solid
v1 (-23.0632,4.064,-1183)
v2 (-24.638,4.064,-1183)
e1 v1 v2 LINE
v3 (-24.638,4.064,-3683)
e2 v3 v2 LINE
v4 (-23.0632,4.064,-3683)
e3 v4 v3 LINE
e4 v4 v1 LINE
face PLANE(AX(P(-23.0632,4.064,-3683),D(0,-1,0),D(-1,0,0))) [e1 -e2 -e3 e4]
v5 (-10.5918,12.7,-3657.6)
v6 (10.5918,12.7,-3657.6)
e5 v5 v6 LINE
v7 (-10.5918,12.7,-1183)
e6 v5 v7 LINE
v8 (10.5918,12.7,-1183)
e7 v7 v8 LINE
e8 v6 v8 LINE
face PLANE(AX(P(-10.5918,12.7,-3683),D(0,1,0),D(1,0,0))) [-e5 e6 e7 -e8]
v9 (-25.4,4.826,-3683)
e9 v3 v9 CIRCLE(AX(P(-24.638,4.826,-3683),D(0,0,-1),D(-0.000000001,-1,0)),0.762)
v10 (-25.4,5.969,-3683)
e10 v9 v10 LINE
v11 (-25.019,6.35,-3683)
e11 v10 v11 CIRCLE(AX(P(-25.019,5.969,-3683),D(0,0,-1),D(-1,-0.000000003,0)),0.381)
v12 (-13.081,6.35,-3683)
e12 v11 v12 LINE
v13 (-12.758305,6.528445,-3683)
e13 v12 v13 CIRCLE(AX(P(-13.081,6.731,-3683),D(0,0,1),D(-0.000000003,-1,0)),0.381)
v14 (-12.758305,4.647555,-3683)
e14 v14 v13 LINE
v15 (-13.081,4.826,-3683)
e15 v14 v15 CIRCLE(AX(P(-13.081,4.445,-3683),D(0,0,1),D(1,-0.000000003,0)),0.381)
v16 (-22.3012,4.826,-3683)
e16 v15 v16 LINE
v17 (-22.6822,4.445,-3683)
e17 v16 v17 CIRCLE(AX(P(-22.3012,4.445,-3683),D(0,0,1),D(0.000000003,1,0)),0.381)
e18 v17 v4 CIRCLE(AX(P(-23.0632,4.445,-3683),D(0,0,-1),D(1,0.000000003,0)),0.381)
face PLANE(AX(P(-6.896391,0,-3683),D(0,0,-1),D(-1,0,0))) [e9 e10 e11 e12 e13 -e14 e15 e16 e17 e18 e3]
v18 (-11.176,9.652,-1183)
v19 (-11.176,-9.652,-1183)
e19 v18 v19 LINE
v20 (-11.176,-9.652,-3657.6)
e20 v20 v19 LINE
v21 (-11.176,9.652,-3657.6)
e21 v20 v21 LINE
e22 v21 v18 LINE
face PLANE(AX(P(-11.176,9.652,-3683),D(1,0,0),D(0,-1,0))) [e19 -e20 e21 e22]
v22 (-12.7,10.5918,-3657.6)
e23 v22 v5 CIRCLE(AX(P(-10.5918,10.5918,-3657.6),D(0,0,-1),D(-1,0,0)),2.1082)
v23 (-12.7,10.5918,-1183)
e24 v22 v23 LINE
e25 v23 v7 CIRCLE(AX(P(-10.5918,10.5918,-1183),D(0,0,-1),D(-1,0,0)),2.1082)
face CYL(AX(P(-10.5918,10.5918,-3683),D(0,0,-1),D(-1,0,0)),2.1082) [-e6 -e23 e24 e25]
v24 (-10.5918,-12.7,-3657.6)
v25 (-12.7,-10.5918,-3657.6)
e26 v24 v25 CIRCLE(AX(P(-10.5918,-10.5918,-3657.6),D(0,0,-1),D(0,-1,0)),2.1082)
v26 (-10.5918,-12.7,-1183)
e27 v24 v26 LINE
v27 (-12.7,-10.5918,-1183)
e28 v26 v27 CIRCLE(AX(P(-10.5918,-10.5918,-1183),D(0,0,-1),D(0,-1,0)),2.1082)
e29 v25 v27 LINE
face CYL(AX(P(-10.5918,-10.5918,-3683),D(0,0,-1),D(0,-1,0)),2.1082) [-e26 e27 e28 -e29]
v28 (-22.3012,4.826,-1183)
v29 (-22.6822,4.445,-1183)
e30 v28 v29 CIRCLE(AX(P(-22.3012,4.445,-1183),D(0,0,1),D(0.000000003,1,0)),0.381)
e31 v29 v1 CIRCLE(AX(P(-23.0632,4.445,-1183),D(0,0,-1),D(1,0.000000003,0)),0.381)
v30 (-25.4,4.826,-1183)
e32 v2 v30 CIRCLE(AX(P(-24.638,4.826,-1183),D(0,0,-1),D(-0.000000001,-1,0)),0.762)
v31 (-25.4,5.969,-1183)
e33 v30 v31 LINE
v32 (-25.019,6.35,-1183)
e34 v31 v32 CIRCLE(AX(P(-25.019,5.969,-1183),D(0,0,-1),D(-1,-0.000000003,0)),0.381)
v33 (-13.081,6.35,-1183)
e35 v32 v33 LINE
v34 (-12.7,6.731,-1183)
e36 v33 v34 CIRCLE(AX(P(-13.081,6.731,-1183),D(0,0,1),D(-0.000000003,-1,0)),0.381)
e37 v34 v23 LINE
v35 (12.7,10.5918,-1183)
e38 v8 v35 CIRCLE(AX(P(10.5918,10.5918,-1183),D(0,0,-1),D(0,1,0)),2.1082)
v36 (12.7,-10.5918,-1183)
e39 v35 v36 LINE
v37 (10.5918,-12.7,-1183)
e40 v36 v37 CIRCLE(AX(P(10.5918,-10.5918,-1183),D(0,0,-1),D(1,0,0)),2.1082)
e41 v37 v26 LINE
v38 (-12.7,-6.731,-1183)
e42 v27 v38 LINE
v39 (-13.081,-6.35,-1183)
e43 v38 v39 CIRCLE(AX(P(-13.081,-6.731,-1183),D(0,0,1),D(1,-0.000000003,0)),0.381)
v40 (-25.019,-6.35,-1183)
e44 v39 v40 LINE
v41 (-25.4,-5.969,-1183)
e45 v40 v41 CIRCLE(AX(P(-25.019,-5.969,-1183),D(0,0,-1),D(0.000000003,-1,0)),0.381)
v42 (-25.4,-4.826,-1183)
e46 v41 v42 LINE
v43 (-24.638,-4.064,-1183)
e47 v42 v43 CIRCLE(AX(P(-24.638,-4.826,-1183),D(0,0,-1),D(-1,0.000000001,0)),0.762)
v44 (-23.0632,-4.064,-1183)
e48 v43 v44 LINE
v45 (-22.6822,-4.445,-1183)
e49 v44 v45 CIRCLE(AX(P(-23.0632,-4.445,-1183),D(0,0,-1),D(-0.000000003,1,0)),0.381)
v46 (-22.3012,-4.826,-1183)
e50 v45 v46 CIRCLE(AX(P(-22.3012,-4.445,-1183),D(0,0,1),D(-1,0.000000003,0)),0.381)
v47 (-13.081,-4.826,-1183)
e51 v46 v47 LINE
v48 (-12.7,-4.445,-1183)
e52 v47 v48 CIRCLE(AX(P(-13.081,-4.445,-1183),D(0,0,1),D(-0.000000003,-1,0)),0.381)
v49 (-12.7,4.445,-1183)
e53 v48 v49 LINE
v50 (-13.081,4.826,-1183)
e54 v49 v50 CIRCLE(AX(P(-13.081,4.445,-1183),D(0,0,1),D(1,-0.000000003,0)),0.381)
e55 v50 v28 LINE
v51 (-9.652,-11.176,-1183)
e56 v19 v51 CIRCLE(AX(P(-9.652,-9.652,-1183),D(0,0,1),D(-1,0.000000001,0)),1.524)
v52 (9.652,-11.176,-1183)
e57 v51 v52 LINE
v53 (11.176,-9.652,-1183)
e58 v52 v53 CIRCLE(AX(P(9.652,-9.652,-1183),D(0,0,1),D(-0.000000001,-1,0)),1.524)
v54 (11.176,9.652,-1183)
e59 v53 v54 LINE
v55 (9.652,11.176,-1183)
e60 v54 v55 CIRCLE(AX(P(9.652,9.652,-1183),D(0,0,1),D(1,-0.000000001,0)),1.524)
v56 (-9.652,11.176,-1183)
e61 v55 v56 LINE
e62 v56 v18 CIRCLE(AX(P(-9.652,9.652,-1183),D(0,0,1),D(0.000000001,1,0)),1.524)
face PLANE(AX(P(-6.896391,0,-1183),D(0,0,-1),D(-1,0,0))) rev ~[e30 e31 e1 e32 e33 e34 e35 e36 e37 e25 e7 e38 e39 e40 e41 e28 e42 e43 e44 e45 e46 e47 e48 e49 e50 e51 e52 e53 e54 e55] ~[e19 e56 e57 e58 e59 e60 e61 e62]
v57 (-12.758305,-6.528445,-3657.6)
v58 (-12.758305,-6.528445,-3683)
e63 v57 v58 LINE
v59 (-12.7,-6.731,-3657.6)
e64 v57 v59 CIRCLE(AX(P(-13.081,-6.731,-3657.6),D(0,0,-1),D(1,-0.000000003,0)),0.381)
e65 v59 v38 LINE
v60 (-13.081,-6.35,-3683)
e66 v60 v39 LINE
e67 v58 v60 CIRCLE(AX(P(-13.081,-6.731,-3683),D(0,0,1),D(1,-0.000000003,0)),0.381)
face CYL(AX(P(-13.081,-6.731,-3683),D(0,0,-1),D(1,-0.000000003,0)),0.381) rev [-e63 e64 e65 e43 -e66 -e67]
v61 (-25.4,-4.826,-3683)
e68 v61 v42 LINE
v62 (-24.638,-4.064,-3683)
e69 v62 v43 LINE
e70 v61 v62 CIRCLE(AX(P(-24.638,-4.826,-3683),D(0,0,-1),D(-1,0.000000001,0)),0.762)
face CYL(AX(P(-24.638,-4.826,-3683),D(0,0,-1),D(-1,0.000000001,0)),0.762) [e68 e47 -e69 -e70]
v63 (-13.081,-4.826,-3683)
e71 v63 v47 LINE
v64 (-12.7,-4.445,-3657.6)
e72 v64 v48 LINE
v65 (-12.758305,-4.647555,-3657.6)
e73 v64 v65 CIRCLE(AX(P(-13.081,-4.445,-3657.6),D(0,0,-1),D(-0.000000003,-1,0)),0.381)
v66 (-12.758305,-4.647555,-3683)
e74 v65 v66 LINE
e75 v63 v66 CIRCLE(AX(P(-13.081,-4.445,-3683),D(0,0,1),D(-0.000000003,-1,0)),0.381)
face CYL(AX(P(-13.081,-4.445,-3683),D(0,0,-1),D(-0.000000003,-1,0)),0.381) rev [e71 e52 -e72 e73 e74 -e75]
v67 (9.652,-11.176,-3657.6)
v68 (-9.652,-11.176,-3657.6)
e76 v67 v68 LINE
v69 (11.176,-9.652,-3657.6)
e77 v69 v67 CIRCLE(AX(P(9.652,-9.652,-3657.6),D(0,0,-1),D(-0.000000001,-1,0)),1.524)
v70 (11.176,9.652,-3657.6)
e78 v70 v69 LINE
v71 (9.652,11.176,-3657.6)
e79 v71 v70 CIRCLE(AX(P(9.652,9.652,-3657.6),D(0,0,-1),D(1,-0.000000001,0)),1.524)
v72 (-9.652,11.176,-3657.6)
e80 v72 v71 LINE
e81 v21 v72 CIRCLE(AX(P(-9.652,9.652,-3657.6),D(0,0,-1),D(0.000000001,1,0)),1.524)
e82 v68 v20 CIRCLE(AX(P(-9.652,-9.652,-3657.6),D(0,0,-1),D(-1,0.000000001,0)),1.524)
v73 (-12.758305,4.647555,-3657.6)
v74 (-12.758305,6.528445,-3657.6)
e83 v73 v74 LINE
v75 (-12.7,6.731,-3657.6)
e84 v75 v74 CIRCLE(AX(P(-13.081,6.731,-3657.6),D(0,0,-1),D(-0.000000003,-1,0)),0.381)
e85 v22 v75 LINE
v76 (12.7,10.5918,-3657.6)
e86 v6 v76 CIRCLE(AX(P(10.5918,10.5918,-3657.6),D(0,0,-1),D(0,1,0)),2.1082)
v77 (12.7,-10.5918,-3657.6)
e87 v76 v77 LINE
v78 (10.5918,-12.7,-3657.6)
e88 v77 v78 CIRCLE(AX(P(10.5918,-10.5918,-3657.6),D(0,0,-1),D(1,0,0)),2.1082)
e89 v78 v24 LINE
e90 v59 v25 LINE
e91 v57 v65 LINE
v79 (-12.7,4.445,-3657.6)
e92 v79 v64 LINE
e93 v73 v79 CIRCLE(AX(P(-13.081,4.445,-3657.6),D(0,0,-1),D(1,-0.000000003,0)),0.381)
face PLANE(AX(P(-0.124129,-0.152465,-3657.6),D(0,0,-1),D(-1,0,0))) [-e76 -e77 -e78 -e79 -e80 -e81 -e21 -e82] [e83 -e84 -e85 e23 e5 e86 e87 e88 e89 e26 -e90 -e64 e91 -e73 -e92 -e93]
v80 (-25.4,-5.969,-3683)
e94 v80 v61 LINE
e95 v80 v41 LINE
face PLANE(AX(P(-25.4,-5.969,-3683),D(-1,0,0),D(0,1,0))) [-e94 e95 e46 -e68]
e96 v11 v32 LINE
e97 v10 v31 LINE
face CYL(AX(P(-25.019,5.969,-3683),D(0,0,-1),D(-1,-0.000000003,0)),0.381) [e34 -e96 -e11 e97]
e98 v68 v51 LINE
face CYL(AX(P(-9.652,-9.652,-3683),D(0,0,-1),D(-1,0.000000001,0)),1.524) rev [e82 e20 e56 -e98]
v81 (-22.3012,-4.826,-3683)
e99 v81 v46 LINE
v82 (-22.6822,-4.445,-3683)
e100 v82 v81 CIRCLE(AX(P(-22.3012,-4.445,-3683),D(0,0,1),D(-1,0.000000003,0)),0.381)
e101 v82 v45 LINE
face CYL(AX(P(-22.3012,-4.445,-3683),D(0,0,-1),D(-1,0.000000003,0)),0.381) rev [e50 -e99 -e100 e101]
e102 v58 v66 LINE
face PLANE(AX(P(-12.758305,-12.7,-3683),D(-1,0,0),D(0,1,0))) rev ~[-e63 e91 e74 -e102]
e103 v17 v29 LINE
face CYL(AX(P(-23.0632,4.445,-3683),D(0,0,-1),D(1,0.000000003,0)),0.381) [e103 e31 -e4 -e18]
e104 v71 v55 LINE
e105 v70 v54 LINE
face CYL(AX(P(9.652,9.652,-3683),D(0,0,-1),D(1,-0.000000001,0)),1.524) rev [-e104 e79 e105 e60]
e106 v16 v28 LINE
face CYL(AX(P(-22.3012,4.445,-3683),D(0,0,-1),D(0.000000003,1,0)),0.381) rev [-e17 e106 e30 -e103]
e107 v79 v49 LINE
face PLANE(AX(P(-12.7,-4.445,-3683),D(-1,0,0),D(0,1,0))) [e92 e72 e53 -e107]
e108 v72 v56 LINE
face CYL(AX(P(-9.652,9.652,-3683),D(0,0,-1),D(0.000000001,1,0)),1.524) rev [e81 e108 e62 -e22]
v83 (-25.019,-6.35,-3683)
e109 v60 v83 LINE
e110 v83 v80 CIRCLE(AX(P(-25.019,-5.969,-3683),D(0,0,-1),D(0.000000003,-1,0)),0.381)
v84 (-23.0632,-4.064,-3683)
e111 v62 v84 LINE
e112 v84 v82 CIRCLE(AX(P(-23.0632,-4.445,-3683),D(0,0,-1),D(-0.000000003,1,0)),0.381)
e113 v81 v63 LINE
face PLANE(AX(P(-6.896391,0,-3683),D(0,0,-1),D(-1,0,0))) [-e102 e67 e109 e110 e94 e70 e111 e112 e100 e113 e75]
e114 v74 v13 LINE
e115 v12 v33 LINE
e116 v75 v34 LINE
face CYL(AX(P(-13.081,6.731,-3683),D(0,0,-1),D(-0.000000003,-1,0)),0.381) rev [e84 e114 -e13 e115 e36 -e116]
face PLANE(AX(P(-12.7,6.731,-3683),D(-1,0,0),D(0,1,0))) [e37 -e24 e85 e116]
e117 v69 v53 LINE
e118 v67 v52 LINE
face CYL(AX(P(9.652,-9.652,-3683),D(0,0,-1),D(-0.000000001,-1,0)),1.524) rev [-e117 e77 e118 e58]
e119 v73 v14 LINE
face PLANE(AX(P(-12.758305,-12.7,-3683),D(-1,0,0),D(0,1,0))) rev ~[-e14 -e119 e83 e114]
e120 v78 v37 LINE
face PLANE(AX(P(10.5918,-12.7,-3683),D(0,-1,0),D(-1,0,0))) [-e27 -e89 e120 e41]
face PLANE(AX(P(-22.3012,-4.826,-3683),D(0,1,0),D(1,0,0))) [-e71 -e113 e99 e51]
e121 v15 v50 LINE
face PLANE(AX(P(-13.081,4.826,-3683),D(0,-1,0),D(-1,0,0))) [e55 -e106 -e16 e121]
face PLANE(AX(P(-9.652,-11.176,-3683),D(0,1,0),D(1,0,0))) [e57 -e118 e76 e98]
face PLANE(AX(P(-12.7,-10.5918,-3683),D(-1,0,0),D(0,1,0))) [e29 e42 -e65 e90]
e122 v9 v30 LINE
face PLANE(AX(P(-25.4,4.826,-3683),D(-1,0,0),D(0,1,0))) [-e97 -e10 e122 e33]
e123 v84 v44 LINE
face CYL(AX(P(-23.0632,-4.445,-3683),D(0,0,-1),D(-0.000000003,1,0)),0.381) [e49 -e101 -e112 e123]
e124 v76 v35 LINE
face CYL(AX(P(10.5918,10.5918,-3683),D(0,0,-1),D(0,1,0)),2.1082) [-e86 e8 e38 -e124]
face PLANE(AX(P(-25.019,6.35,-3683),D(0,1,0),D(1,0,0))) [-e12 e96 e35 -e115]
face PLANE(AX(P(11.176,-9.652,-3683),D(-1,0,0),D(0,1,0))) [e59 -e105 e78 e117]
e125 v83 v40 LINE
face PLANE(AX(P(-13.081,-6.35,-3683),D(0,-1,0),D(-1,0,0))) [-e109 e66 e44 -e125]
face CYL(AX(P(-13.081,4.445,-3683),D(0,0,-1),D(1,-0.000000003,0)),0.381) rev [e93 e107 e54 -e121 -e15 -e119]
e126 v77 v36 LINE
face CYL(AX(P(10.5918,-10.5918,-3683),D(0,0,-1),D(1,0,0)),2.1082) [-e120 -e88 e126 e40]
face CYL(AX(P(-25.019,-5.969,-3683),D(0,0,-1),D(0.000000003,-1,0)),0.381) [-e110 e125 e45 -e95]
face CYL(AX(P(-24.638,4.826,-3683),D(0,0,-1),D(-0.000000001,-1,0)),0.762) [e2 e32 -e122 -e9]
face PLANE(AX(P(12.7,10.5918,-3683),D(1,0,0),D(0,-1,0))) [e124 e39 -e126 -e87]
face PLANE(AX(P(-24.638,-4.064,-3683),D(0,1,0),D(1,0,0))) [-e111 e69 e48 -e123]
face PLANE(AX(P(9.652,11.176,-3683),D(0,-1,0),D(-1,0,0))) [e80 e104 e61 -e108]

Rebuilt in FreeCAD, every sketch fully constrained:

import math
import FreeCAD as App
import Part
import Sketcher
from FreeCAD import Vector
Q = App.Units.Quantity

doc = App.newDocument("Part")
body = doc.addObject("PartDesign::Body", "Body")

sketch1 = body.newObject("Sketcher::SketchObject", "Sketch")
sketch1.AttachmentSupport = (doc.getObject("XY_Plane"), [""])
sketch1.MapMode = "FlatFace"
sketch1.AttachmentOffset = App.Placement(Vector(0, 0, -145 * 25.4), App.Rotation())
sketch1.addGeometry([
    Part.LineSegment(Vector(-25.4, -5.97, 0), Vector(-25.4, -4.83, 0)),
    Part.ArcOfCircle(Part.Circle(Vector(-24.64, -4.83, 0), Vector(0, 0, 1), 0.76), math.radians(90), math.radians(180)),
    Part.LineSegment(Vector(-24.64, -4.06, 0), Vector(-23.06, -4.06, 0)),
    Part.ArcOfCircle(Part.Circle(Vector(-23.06, -4.44, 0), Vector(0, 0, 1), 0.38), math.radians(0), math.radians(90)),
    Part.ArcOfCircle(Part.Circle(Vector(-22.3, -4.45, 0), Vector(0, 0, 1), 0.38), math.radians(180), math.radians(270)),
    Part.LineSegment(Vector(-22.3, -4.83, 0), Vector(-13.08, -4.83, 0)),
    Part.ArcOfCircle(Part.Circle(Vector(-13.08, -4.45, 0), Vector(0, 0, 1), 0.38), math.radians(-90), math.radians(0)),
    Part.LineSegment(Vector(-12.7, -4.45, 0), Vector(-12.7, 4.45, 0)),
    Part.ArcOfCircle(Part.Circle(Vector(-13.08, 4.45, 0), Vector(0, 0, 1), 0.38), math.radians(0), math.radians(90)),
    Part.LineSegment(Vector(-13.08, 4.83, 0), Vector(-22.3, 4.83, 0)),
    Part.ArcOfCircle(Part.Circle(Vector(-22.3, 4.45, 0), Vector(0, 0, 1), 0.38), math.radians(90), math.radians(180)),
    Part.ArcOfCircle(Part.Circle(Vector(-23.06, 4.44, 0), Vector(0, 0, 1), 0.38), math.radians(-90), math.radians(0)),
    Part.LineSegment(Vector(-23.06, 4.06, 0), Vector(-24.64, 4.06, 0)),
    Part.ArcOfCircle(Part.Circle(Vector(-24.64, 4.83, 0), Vector(0, 0, 1), 0.76), math.radians(-180), math.radians(-90)),
    Part.LineSegment(Vector(-25.4, 4.83, 0), Vector(-25.4, 5.97, 0)),
    Part.ArcOfCircle(Part.Circle(Vector(-25.02, 5.97, 0), Vector(0, 0, 1), 0.38), math.radians(90), math.radians(180)),
    Part.LineSegment(Vector(-25.02, 6.35, 0), Vector(-13.08, 6.35, 0)),
    Part.ArcOfCircle(Part.Circle(Vector(-13.08, 6.73, 0), Vector(0, 0, 1), 0.38), math.radians(-90), math.radians(0)),
    Part.LineSegment(Vector(-12.7, 6.73, 0), Vector(-12.7, 10.59, 0)),
    Part.ArcOfCircle(Part.Circle(Vector(-10.59, 10.59, 0), Vector(0, 0, 1), 2.11), math.radians(90), math.radians(180)),
    Part.LineSegment(Vector(-10.59, 12.7, 0), Vector(10.59, 12.7, 0)),
    Part.ArcOfCircle(Part.Circle(Vector(10.59, 10.59, 0), Vector(0, 0, 1), 2.11), math.radians(0), math.radians(90)),
    Part.LineSegment(Vector(12.7, 10.59, 0), Vector(12.7, -10.59, 0)),
    Part.ArcOfCircle(Part.Circle(Vector(10.59, -10.59, 0), Vector(0, 0, 1), 2.11), math.radians(-90), math.radians(0)),
    Part.LineSegment(Vector(10.59, -12.7, 0), Vector(-10.59, -12.7, 0)),
    Part.ArcOfCircle(Part.Circle(Vector(-10.59, -10.59, 0), Vector(0, 0, 1), 2.11), math.radians(180), math.radians(270)),
    Part.LineSegment(Vector(-12.7, -10.59, 0), Vector(-12.7, -6.73, 0)),
    Part.ArcOfCircle(Part.Circle(Vector(-13.08, -6.73, 0), Vector(0, 0, 1), 0.38), math.radians(0), math.radians(90)),
    Part.LineSegment(Vector(-13.08, -6.35, 0), Vector(-25.02, -6.35, 0)),
    Part.ArcOfCircle(Part.Circle(Vector(-25.02, -5.97, 0), Vector(0, 0, 1), 0.38), math.radians(180), math.radians(270)),
    Part.ArcOfCircle(Part.Circle(Vector(-9.65, 9.65, 0), Vector(0, 0, 1), 1.52), math.radians(90), math.radians(180)),
    Part.LineSegment(Vector(-11.18, 9.65, 0), Vector(-11.18, -9.65, 0)),
    Part.ArcOfCircle(Part.Circle(Vector(-9.65, -9.65, 0), Vector(0, 0, 1), 1.52), math.radians(180), math.radians(270)),
    Part.LineSegment(Vector(-9.65, -11.18, 0), Vector(9.65, -11.18, 0)),
    Part.ArcOfCircle(Part.Circle(Vector(9.65, -9.65, 0), Vector(0, 0, 1), 1.52), math.radians(-90), math.radians(0)),
    Part.LineSegment(Vector(11.18, -9.65, 0), Vector(11.18, 9.65, 0)),
    Part.ArcOfCircle(Part.Circle(Vector(9.65, 9.65, 0), Vector(0, 0, 1), 1.52), math.radians(0), math.radians(90)),
    Part.LineSegment(Vector(9.65, 11.18, 0), Vector(-9.65, 11.18, 0)),
], False)
sketch1.addConstraint([
    Sketcher.Constraint("Tangent", 0, 2, 1, 2),
    Sketcher.Constraint("Tangent", 1, 1, 2, 1),
    Sketcher.Constraint("Tangent", 2, 2, 3, 2),
    Sketcher.Constraint("Tangent", 3, 1, 4, 1),
    Sketcher.Constraint("Tangent", 4, 2, 5, 1),
    Sketcher.Constraint("Tangent", 5, 2, 6, 1),
    Sketcher.Constraint("Tangent", 6, 2, 7, 1),
    Sketcher.Constraint("Tangent", 7, 2, 8, 1),
    Sketcher.Constraint("Tangent", 8, 2, 9, 1),
    Sketcher.Constraint("Tangent", 9, 2, 10, 1),
    Sketcher.Constraint("Tangent", 10, 2, 11, 2),
    Sketcher.Constraint("Tangent", 11, 1, 12, 1),
    Sketcher.Constraint("Tangent", 12, 2, 13, 2),
    Sketcher.Constraint("Tangent", 13, 1, 14, 1),
    Sketcher.Constraint("Tangent", 14, 2, 15, 2),
    Sketcher.Constraint("Tangent", 15, 1, 16, 1),
    Sketcher.Constraint("Tangent", 16, 2, 17, 1),
    Sketcher.Constraint("Tangent", 17, 2, 18, 1),
    Sketcher.Constraint("Tangent", 18, 2, 19, 2),
    Sketcher.Constraint("Tangent", 19, 1, 20, 1),
    Sketcher.Constraint("Tangent", 20, 2, 21, 2),
    Sketcher.Constraint("Tangent", 21, 1, 22, 1),
    Sketcher.Constraint("Tangent", 22, 2, 23, 2),
    Sketcher.Constraint("Tangent", 23, 1, 24, 1),
    Sketcher.Constraint("Tangent", 24, 2, 25, 2),
    Sketcher.Constraint("Tangent", 25, 1, 26, 1),
    Sketcher.Constraint("Tangent", 26, 2, 27, 1),
    Sketcher.Constraint("Tangent", 27, 2, 28, 1),
    Sketcher.Constraint("Tangent", 28, 2, 29, 2),
    Sketcher.Constraint("Tangent", 29, 1, 0, 1),
    Sketcher.Constraint("Tangent", 30, 2, 31, 1),
    Sketcher.Constraint("Tangent", 31, 2, 32, 1),
    Sketcher.Constraint("Tangent", 32, 2, 33, 1),
    Sketcher.Constraint("Tangent", 33, 2, 34, 1),
    Sketcher.Constraint("Tangent", 34, 2, 35, 1),
    Sketcher.Constraint("Tangent", 35, 2, 36, 1),
    Sketcher.Constraint("Tangent", 36, 2, 37, 1),
    Sketcher.Constraint("Tangent", 37, 2, 30, 1),
    Sketcher.Constraint("Vertical", 0),
    Sketcher.Constraint("Horizontal", 2),
    Sketcher.Constraint("Horizontal", 5),
    Sketcher.Constraint("Vertical", 7),
    Sketcher.Constraint("Horizontal", 9),
    Sketcher.Constraint("Horizontal", 12),
    Sketcher.Constraint("Vertical", 14),
    Sketcher.Constraint("Horizontal", 16),
    Sketcher.Constraint("Vertical", 18),
    Sketcher.Constraint("Horizontal", 20),
    Sketcher.Constraint("Vertical", 22),
    Sketcher.Constraint("Horizontal", 24),
    Sketcher.Constraint("Vertical", 26),
    Sketcher.Constraint("Horizontal", 28),
    Sketcher.Constraint("Vertical", 31),
    Sketcher.Constraint("Horizontal", 33),
    Sketcher.Constraint("Vertical", 35),
    Sketcher.Constraint("Horizontal", 37),
    Sketcher.Constraint("Equal", 3, 4),
    Sketcher.Constraint("Equal", 4, 6),
    Sketcher.Constraint("Equal", 6, 8),
    Sketcher.Constraint("Equal", 8, 10),
    Sketcher.Constraint("Equal", 10, 11),
    Sketcher.Constraint("Equal", 1, 13),
    Sketcher.Constraint("Equal", 11, 15),
    Sketcher.Constraint("Equal", 15, 17),
    Sketcher.Constraint("Equal", 19, 21),
    Sketcher.Constraint("Equal", 21, 23),
    Sketcher.Constraint("Equal", 23, 25),
    Sketcher.Constraint("Equal", 17, 27),
    Sketcher.Constraint("Equal", 27, 29),
    Sketcher.Constraint("Equal", 30, 32),
    Sketcher.Constraint("Equal", 32, 34),
    Sketcher.Constraint("Equal", 34, 36),
    Sketcher.Constraint("Symmetric", 19, 3, 23, 3, -1, 1),
    Sketcher.Constraint("Symmetric", 30, 3, 34, 3, -1, 1),
    Sketcher.Constraint("Symmetric", 4, 3, 10, 3, -1),
    Sketcher.Constraint("Symmetric", 1, 3, 13, 3, -1),
    Sketcher.Constraint("Symmetric", 17, 3, 27, 3, -1),
    Sketcher.Constraint("Horizontal", 3, 3, 4, 3),
    Sketcher.Constraint("Horizontal", 0, 2, 4, 2),
    Sketcher.Constraint("Vertical", 8, 3, 17, 3),
    Sketcher.Constraint("Equal", 24, 22),
    Sketcher.Constraint("Equal", 37, 31),
    Sketcher.Constraint("Radius", 1, Q("0.03 in")),
    Sketcher.Constraint("Radius", 30, Q("0.06 in")),
    Sketcher.Constraint("DistanceX", 0, 2, -1, 1, Q("1 in")),
    Sketcher.Constraint("Radius", 19, Q("0.083 in")),
    Sketcher.Constraint("DistanceX", 16, 1, 16, 2, Q("0.47 in")),
    Sketcher.Constraint("DistanceX", 33, 1, 33, 2, Q("0.76 in")),
    Sketcher.Constraint("DistanceY", 7, 1, 7, 2, Q("0.35 in")),
    Sketcher.Constraint("DistanceX", 2, 1, 2, 2, Q("0.062 in")),
    Sketcher.Constraint("DistanceY", 0, 1, 0, 2, Q("0.045 in")),
])
pad1 = body.newObject("PartDesign::Pad", "Pad")
pad1.Profile = sketch1
pad1.Length = 2500

sketch2 = body.newObject("Sketcher::SketchObject", "Sketch001")
sketch2.AttachmentSupport = (doc.getObject("XY_Plane"), [""])
sketch2.MapMode = "FlatFace"
sketch2.AttachmentOffset = App.Placement(Vector(0, 0, -145 * 25.4), App.Rotation())
sketch2.addGeometry([
    Part.LineSegment(Vector(-12.8, -12.7, 0), Vector(-12.8, 12.7, 0)),
    Part.LineSegment(Vector(-12.8, 12.7, 0), Vector(10.6, 12.7, 0)),
    Part.ArcOfCircle(Part.Circle(Vector(10.6, 10.6, 0), Vector(0, 0, 1), 2.1), math.radians(0), math.radians(90)),
    Part.LineSegment(Vector(12.7, 10.6, 0), Vector(12.7, -12.9, 0)),
    Part.LineSegment(Vector(12.7, -12.9, 0), Vector(10.6, -12.7, 0)),
    Part.LineSegment(Vector(10.6, -12.7, 0), Vector(-12.8, -12.7, 0)),
], False)
sketch2.addConstraint([
    Sketcher.Constraint("Coincident", 0, 2, 1, 1),
    Sketcher.Constraint("Tangent", 1, 2, 2, 2),
    Sketcher.Constraint("Tangent", 2, 1, 3, 1),
    Sketcher.Constraint("Coincident", 3, 2, 4, 1),
    Sketcher.Constraint("Coincident", 4, 2, 5, 1),
    Sketcher.Constraint("Coincident", 5, 2, 0, 1),
    Sketcher.Constraint("Vertical", 0),
    Sketcher.Constraint("Horizontal", 1),
    Sketcher.Constraint("Vertical", 3),
    Sketcher.Constraint("Horizontal", 5),
    Sketcher.Constraint("Symmetric", 1, 2, 4, 2, -1),
    Sketcher.Constraint("DistanceY", 0, 1, 0, 2, Q("1 in")),
    Sketcher.Constraint("Radius", 2, Q("0.083 in")),
    Sketcher.Constraint("DistanceX", -1, 1, 2, 1, Q("0.5 in")),
    Sketcher.Constraint("DistanceY", 3, 2, 3, 1, Q("23.501609 mm")),
    Sketcher.Constraint("DistanceX", 1, 1, 1, 2, Q("23.350105 mm")),
])
pocket1 = body.newObject("PartDesign::Pocket", "Pocket")
pocket1.Profile = sketch2
pocket1.Length = Q("1 in")
pocket1.Reversed = True

doc.recompute()
